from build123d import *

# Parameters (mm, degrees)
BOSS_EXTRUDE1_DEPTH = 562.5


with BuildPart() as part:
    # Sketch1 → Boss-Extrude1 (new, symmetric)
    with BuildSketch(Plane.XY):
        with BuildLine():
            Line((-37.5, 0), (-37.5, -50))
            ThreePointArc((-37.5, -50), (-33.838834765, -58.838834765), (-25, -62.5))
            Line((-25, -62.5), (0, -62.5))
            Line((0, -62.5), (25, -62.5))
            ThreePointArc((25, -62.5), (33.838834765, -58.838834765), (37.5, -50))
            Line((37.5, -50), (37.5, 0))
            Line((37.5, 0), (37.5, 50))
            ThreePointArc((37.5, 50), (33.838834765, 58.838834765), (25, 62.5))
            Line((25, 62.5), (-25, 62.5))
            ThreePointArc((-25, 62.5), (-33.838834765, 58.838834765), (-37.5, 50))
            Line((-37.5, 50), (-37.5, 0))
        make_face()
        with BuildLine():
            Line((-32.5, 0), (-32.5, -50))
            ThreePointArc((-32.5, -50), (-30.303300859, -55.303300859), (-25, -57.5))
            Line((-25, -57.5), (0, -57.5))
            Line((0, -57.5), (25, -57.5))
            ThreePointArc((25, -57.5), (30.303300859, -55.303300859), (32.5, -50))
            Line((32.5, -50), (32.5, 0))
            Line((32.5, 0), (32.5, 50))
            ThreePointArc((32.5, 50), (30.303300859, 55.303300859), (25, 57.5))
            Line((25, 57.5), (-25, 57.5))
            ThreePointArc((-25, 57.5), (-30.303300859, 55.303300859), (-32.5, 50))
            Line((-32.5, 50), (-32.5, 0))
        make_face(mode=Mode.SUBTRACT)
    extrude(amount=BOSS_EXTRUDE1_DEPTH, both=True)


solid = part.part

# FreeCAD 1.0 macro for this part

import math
import FreeCAD as App
import Part
import Sketcher
from FreeCAD import Vector

doc = App.newDocument("Part")
body = doc.addObject("PartDesign::Body", "Body")

# Sketch on XY plane
sketch1 = doc.addObject("Sketcher::SketchObject", "Sketch")
body.addObject(sketch1)
sketch1.AttachmentSupport = (doc.XY_Plane, [""])
sketch1.MapMode = "FlatFace"
sketch1.addGeometry([
    Part.ArcOfCircle(Part.Circle(Vector(-25, -50, 0), Vector(0, 0, 1), 12), math.radians(180), math.radians(270)),  # 0
    Part.LineSegment(Vector(-25, -62, 0), Vector(25, -62, 0)),  # 1
    Part.ArcOfCircle(Part.Circle(Vector(25, -50, 0), Vector(0, 0, 1), 12), math.radians(-90), math.radians(0)),  # 2
    Part.LineSegment(Vector(38, -50, 0), Vector(38, 50, 0)),  # 3
    Part.ArcOfCircle(Part.Circle(Vector(25, 50, 0), Vector(0, 0, 1), 12), math.radians(0), math.radians(90)),  # 4
    Part.LineSegment(Vector(25, 62, 0), Vector(-25, 62, 0)),  # 5
    Part.ArcOfCircle(Part.Circle(Vector(-25, 50, 0), Vector(0, 0, 1), 12), math.radians(90), math.radians(180)),  # 6
    Part.LineSegment(Vector(-38, 50, 0), Vector(-38, -50, 0)),  # 7
    Part.ArcOfCircle(Part.Circle(Vector(-25, -50, 0), Vector(0, 0, 1), 8), math.radians(180), math.radians(270)),  # 8
    Part.LineSegment(Vector(-32, -50, 0), Vector(-32, 50, 0)),  # 9
    Part.ArcOfCircle(Part.Circle(Vector(-25, 50, 0), Vector(0, 0, 1), 8), math.radians(90), math.radians(180)),  # 10
    Part.LineSegment(Vector(-25, 58, 0), Vector(25, 58, 0)),  # 11
    Part.ArcOfCircle(Part.Circle(Vector(25, 50, 0), Vector(0, 0, 1), 8), math.radians(0), math.radians(90)),  # 12
    Part.LineSegment(Vector(32, 50, 0), Vector(32, -50, 0)),  # 13
    Part.ArcOfCircle(Part.Circle(Vector(25, -50, 0), Vector(0, 0, 1), 8), math.radians(-90), math.radians(0)),  # 14
    Part.LineSegment(Vector(25, -58, 0), Vector(-25, -58, 0)),  # 15
], False)
sketch1.addConstraint([
    Sketcher.Constraint("Tangent", 0, 2, 1, 1),
    Sketcher.Constraint("Tangent", 1, 2, 2, 1),
    Sketcher.Constraint("Tangent", 2, 2, 3, 1),
    Sketcher.Constraint("Tangent", 3, 2, 4, 1),
    Sketcher.Constraint("Tangent", 4, 2, 5, 1),
    Sketcher.Constraint("Tangent", 5, 2, 6, 1),
    Sketcher.Constraint("Tangent", 6, 2, 7, 1),
    Sketcher.Constraint("Tangent", 7, 2, 0, 1),
    Sketcher.Constraint("Tangent", 8, 1, 9, 1),
    Sketcher.Constraint("Tangent", 9, 2, 10, 2),
    Sketcher.Constraint("Tangent", 10, 1, 11, 1),
    Sketcher.Constraint("Tangent", 11, 2, 12, 2),
    Sketcher.Constraint("Tangent", 12, 1, 13, 1),
    Sketcher.Constraint("Tangent", 13, 2, 14, 2),
    Sketcher.Constraint("Tangent", 14, 1, 15, 1),
    Sketcher.Constraint("Tangent", 15, 2, 8, 2),
    Sketcher.Constraint("Horizontal", 1),
    Sketcher.Constraint("Vertical", 3),
    Sketcher.Constraint("Horizontal", 5),
    Sketcher.Constraint("Vertical", 7),
    Sketcher.Constraint("Vertical", 9),
    Sketcher.Constraint("Horizontal", 11),
    Sketcher.Constraint("Vertical", 13),
    Sketcher.Constraint("Horizontal", 15),
    Sketcher.Constraint("Coincident", 8, 3, 0, 3),
    Sketcher.Constraint("Coincident", 10, 3, 6, 3),
    Sketcher.Constraint("Coincident", 12, 3, 4, 3),
    Sketcher.Constraint("Equal", 0, 2),
    Sketcher.Constraint("Equal", 2, 4),
    Sketcher.Constraint("Equal", 4, 6),
    Sketcher.Constraint("Equal", 12, 14),
    Sketcher.Constraint("Symmetric", 0, 3, 4, 3, -1, 1),
    Sketcher.Constraint("Radius", 0, 12.5),
    Sketcher.Constraint("Radius", 8, 7.5),
    Sketcher.Constraint("DistanceX", 1, 1, 1, 2, 50.0),
    Sketcher.Constraint("DistanceY", 3, 1, 3, 2, 100.0),
])
pad1 = doc.addObject("PartDesign::Pad", "Pad")
body.addObject(pad1)
pad1.Profile = sketch1
pad1.Length = 1125
pad1.Midplane = True

doc.recompute()
